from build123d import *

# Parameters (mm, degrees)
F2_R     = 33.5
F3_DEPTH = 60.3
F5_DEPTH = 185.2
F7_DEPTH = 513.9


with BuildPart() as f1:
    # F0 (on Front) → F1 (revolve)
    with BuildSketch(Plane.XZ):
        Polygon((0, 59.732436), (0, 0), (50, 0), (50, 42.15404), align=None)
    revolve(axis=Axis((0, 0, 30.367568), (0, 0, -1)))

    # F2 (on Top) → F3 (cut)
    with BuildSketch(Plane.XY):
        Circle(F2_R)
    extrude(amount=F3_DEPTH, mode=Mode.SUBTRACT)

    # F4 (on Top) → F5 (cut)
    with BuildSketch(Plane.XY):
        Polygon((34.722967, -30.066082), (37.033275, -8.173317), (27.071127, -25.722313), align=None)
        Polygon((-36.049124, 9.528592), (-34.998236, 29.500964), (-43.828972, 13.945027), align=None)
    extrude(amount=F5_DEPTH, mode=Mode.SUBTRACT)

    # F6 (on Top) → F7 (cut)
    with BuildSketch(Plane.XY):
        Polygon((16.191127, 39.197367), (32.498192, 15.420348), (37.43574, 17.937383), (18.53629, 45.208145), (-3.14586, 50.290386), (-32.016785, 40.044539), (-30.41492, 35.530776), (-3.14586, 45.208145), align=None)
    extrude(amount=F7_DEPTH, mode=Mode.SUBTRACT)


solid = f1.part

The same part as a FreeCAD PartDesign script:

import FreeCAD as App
import Part
import Sketcher

V = App.Vector

doc = App.newDocument("Part")
body = doc.addObject("PartDesign::Body", "Body")
body.AllowCompound = True

# Sketch on XZ plane
sketch1 = body.newObject("Sketcher::SketchObject", "Sketch")
sketch1.AttachmentSupport = (doc.getObject("XZ_Plane"), [""])
sketch1.MapMode = "FlatFace"
sketch1.addGeometry([
    Part.LineSegment(V(0, 59.732436, 0), V(0, 0, 0)),
    Part.LineSegment(V(0, 0, 0), V(50, 0, 0)),
    Part.LineSegment(V(50, 0, 0), V(50, 42.15404, 0)),
    Part.LineSegment(V(50, 42.15404, 0), V(0, 59.732436, 0)),
], False)
sketch1.addConstraint([
    Sketcher.Constraint("Coincident", 0, 2, 1, 1),
    Sketcher.Constraint("Coincident", 1, 2, 2, 1),
    Sketcher.Constraint("Coincident", 2, 2, 3, 1),
    Sketcher.Constraint("Coincident", 3, 2, 0, 1),
    Sketcher.Constraint("Vertical", 0),
    Sketcher.Constraint("Horizontal", 1),
    Sketcher.Constraint("Vertical", 2),
    Sketcher.Constraint("Coincident", 0, 2, -1, 1),
    Sketcher.Constraint("DistanceX", 1, 1, 1, 2, 50.0),
    Sketcher.Constraint("Distance", 3, 53.0),
    Sketcher.Constraint("DistanceY", 2, 1, 2, 2, 42.15404),
])
revolution = body.newObject("PartDesign::Revolution", "Revolution")
revolution.Profile = sketch1
revolution.ReferenceAxis = (sketch1, ["V_Axis"])
revolution.Angle = 360

# Sketch on XY plane
sketch2 = body.newObject("Sketcher::SketchObject", "Sketch001")
sketch2.AttachmentSupport = (doc.getObject("XY_Plane"), [""])
sketch2.MapMode = "FlatFace"
sketch2.addGeometry(Part.Circle(V(0, 0, 0), V(0, 0, 1), 33.5), False)
sketch2.addConstraint([
    Sketcher.Constraint("Coincident", 0, 3, -1, 1),
    Sketcher.Constraint("Diameter", 0, 67.0),
])
pocket1 = body.newObject("PartDesign::Pocket", "Pocket")
pocket1.Profile = sketch2
pocket1.Length = 60.3
pocket1.Reversed = True

# Sketch on XY plane
sketch3 = body.newObject("Sketcher::SketchObject", "Sketch002")
sketch3.AttachmentSupport = (doc.getObject("XY_Plane"), [""])
sketch3.MapMode = "FlatFace"
sketch3.addGeometry([
    Part.LineSegment(V(34.722967, -30.066082, 0), V(37.033275, -8.173317, 0)),  # 0
    Part.LineSegment(V(37.033275, -8.173317, 0), V(27.071127, -25.722313, 0)),  # 1
    Part.LineSegment(V(27.071127, -25.722313, 0), V(34.722967, -30.066082, 0)),  # 2
    Part.LineSegment(V(-36.049124, 9.528592, 0), V(-34.998236, 29.500964, 0)),  # 3
    Part.LineSegment(V(-34.998236, 29.500964, 0), V(-43.828972, 13.945027, 0)),  # 4
    Part.LineSegment(V(-43.828972, 13.945027, 0), V(-36.049124, 9.528592, 0)),  # 5
], False)
sketch3.addConstraint([
    Sketcher.Constraint("Coincident", 0, 2, 1, 1),
    Sketcher.Constraint("Coincident", 1, 2, 2, 1),
    Sketcher.Constraint("Coincident", 2, 2, 0, 1),
    Sketcher.Constraint("Coincident", 3, 2, 4, 1),
    Sketcher.Constraint("Coincident", 4, 2, 5, 1),
    Sketcher.Constraint("Coincident", 5, 2, 3, 1),
    Sketcher.Constraint("Perpendicular", 1, 2),
    Sketcher.Constraint("Perpendicular", 2, 4),
    Sketcher.Constraint("Perpendicular", 4, 5),
    Sketcher.Constraint("Distance", 3, 20.0),
    Sketcher.Constraint("Distance", 5, 8.946001),
    Sketcher.Constraint("DistanceX", 4, 2, 1, 2, 70.900099),
    Sketcher.Constraint("DistanceX", 5, 2, 0, 2, 73.082399),
    Sketcher.Constraint("Distance", 0, 22.014329),
    Sketcher.Constraint("DistanceX", 1, 2, 0, 2, 9.962148),
    Sketcher.Constraint("DistanceY", 0, 2, 3, 2, 37.674281),
    Sketcher.Constraint("DistanceX", -1, 1, 0, 2, 37.033275),
    Sketcher.Constraint("DistanceY", 0, 2, -1, 1, 8.173317),
])
pocket2 = body.newObject("PartDesign::Pocket", "Pocket001")
pocket2.Profile = sketch3
pocket2.Length = 185.2
pocket2.Reversed = True

# Sketch on XY plane
sketch4 = body.newObject("Sketcher::SketchObject", "Sketch003")
sketch4.AttachmentSupport = (doc.getObject("XY_Plane"), [""])
sketch4.MapMode = "FlatFace"
sketch4.addGeometry([
    Part.LineSegment(V(16.191127, 39.197367, 0), V(32.498192, 15.420348, 0)),  # 0
    Part.LineSegment(V(32.498192, 15.420348, 0), V(37.43574, 17.937383, 0)),  # 1
    Part.LineSegment(V(37.43574, 17.937383, 0), V(18.53629, 45.208145, 0)),  # 2
    Part.LineSegment(V(18.53629, 45.208145, 0), V(-3.14586, 50.290386, 0)),  # 3
    Part.LineSegment(V(-3.14586, 50.290386, 0), V(-32.016785, 40.044539, 0)),  # 4
    Part.LineSegment(V(-32.016785, 40.044539, 0), V(-30.41492, 35.530776, 0)),  # 5
    Part.LineSegment(V(-30.41492, 35.530776, 0), V(-3.14586, 45.208145, 0)),  # 6
    Part.LineSegment(V(-3.14586, 45.208145, 0), V(16.191127, 39.197367, 0)),  # 7
], False)
sketch4.addConstraint([
    Sketcher.Constraint("Coincident", 0, 2, 1, 1),
    Sketcher.Constraint("Coincident", 1, 2, 2, 1),
    Sketcher.Constraint("Coincident", 2, 2, 3, 1),
    Sketcher.Constraint("Coincident", 3, 2, 4, 1),
    Sketcher.Constraint("Coincident", 4, 2, 5, 1),
    Sketcher.Constraint("Coincident", 5, 2, 6, 1),
    Sketcher.Constraint("Coincident", 6, 2, 7, 1),
    Sketcher.Constraint("Coincident", 7, 2, 0, 1),
    Sketcher.Constraint("Perpendicular", 4, 5),
    Sketcher.Constraint("Perpendicular", 5, 6),
    Sketcher.Constraint("Horizontal", 2, 2, 6, 2),
    Sketcher.Constraint("Vertical", 3, 2, 6, 2),
    Sketcher.Constraint("Distance", 0, 28.831701),
    Sketcher.Constraint("DistanceX", 3, 2, 1, 2, 40.5816),
    Sketcher.Constraint("Distance", 3, 22.269818),
    Sketcher.Constraint("DistanceY", -1, 1, 0, 2, 15.420348),
    Sketcher.Constraint("DistanceX", -1, 1, 1, 2, 37.43574),
    Sketcher.Constraint("DistanceX", -1, 1, 2, 2, 18.53629),
    Sketcher.Constraint("DistanceY", -1, 1, 4, 2, 40.044539),
    Sketcher.Constraint("DistanceX", 5, 2, -1, 1, 30.41492),
    Sketcher.Constraint("DistanceY", 5, 2, 3, 2, 14.75961),
    Sketcher.Constraint("DistanceX", 5, 2, 0, 2, 62.913112),
    Sketcher.Constraint("DistanceY", 7, 2, 2, 2, 6.010778),
    Sketcher.Constraint("Distance", 1, 5.542098),
])
pocket3 = body.newObject("PartDesign::Pocket", "Pocket002")
pocket3.Profile = sketch4
pocket3.Length = 513.9
pocket3.Reversed = True

doc.recompute()
